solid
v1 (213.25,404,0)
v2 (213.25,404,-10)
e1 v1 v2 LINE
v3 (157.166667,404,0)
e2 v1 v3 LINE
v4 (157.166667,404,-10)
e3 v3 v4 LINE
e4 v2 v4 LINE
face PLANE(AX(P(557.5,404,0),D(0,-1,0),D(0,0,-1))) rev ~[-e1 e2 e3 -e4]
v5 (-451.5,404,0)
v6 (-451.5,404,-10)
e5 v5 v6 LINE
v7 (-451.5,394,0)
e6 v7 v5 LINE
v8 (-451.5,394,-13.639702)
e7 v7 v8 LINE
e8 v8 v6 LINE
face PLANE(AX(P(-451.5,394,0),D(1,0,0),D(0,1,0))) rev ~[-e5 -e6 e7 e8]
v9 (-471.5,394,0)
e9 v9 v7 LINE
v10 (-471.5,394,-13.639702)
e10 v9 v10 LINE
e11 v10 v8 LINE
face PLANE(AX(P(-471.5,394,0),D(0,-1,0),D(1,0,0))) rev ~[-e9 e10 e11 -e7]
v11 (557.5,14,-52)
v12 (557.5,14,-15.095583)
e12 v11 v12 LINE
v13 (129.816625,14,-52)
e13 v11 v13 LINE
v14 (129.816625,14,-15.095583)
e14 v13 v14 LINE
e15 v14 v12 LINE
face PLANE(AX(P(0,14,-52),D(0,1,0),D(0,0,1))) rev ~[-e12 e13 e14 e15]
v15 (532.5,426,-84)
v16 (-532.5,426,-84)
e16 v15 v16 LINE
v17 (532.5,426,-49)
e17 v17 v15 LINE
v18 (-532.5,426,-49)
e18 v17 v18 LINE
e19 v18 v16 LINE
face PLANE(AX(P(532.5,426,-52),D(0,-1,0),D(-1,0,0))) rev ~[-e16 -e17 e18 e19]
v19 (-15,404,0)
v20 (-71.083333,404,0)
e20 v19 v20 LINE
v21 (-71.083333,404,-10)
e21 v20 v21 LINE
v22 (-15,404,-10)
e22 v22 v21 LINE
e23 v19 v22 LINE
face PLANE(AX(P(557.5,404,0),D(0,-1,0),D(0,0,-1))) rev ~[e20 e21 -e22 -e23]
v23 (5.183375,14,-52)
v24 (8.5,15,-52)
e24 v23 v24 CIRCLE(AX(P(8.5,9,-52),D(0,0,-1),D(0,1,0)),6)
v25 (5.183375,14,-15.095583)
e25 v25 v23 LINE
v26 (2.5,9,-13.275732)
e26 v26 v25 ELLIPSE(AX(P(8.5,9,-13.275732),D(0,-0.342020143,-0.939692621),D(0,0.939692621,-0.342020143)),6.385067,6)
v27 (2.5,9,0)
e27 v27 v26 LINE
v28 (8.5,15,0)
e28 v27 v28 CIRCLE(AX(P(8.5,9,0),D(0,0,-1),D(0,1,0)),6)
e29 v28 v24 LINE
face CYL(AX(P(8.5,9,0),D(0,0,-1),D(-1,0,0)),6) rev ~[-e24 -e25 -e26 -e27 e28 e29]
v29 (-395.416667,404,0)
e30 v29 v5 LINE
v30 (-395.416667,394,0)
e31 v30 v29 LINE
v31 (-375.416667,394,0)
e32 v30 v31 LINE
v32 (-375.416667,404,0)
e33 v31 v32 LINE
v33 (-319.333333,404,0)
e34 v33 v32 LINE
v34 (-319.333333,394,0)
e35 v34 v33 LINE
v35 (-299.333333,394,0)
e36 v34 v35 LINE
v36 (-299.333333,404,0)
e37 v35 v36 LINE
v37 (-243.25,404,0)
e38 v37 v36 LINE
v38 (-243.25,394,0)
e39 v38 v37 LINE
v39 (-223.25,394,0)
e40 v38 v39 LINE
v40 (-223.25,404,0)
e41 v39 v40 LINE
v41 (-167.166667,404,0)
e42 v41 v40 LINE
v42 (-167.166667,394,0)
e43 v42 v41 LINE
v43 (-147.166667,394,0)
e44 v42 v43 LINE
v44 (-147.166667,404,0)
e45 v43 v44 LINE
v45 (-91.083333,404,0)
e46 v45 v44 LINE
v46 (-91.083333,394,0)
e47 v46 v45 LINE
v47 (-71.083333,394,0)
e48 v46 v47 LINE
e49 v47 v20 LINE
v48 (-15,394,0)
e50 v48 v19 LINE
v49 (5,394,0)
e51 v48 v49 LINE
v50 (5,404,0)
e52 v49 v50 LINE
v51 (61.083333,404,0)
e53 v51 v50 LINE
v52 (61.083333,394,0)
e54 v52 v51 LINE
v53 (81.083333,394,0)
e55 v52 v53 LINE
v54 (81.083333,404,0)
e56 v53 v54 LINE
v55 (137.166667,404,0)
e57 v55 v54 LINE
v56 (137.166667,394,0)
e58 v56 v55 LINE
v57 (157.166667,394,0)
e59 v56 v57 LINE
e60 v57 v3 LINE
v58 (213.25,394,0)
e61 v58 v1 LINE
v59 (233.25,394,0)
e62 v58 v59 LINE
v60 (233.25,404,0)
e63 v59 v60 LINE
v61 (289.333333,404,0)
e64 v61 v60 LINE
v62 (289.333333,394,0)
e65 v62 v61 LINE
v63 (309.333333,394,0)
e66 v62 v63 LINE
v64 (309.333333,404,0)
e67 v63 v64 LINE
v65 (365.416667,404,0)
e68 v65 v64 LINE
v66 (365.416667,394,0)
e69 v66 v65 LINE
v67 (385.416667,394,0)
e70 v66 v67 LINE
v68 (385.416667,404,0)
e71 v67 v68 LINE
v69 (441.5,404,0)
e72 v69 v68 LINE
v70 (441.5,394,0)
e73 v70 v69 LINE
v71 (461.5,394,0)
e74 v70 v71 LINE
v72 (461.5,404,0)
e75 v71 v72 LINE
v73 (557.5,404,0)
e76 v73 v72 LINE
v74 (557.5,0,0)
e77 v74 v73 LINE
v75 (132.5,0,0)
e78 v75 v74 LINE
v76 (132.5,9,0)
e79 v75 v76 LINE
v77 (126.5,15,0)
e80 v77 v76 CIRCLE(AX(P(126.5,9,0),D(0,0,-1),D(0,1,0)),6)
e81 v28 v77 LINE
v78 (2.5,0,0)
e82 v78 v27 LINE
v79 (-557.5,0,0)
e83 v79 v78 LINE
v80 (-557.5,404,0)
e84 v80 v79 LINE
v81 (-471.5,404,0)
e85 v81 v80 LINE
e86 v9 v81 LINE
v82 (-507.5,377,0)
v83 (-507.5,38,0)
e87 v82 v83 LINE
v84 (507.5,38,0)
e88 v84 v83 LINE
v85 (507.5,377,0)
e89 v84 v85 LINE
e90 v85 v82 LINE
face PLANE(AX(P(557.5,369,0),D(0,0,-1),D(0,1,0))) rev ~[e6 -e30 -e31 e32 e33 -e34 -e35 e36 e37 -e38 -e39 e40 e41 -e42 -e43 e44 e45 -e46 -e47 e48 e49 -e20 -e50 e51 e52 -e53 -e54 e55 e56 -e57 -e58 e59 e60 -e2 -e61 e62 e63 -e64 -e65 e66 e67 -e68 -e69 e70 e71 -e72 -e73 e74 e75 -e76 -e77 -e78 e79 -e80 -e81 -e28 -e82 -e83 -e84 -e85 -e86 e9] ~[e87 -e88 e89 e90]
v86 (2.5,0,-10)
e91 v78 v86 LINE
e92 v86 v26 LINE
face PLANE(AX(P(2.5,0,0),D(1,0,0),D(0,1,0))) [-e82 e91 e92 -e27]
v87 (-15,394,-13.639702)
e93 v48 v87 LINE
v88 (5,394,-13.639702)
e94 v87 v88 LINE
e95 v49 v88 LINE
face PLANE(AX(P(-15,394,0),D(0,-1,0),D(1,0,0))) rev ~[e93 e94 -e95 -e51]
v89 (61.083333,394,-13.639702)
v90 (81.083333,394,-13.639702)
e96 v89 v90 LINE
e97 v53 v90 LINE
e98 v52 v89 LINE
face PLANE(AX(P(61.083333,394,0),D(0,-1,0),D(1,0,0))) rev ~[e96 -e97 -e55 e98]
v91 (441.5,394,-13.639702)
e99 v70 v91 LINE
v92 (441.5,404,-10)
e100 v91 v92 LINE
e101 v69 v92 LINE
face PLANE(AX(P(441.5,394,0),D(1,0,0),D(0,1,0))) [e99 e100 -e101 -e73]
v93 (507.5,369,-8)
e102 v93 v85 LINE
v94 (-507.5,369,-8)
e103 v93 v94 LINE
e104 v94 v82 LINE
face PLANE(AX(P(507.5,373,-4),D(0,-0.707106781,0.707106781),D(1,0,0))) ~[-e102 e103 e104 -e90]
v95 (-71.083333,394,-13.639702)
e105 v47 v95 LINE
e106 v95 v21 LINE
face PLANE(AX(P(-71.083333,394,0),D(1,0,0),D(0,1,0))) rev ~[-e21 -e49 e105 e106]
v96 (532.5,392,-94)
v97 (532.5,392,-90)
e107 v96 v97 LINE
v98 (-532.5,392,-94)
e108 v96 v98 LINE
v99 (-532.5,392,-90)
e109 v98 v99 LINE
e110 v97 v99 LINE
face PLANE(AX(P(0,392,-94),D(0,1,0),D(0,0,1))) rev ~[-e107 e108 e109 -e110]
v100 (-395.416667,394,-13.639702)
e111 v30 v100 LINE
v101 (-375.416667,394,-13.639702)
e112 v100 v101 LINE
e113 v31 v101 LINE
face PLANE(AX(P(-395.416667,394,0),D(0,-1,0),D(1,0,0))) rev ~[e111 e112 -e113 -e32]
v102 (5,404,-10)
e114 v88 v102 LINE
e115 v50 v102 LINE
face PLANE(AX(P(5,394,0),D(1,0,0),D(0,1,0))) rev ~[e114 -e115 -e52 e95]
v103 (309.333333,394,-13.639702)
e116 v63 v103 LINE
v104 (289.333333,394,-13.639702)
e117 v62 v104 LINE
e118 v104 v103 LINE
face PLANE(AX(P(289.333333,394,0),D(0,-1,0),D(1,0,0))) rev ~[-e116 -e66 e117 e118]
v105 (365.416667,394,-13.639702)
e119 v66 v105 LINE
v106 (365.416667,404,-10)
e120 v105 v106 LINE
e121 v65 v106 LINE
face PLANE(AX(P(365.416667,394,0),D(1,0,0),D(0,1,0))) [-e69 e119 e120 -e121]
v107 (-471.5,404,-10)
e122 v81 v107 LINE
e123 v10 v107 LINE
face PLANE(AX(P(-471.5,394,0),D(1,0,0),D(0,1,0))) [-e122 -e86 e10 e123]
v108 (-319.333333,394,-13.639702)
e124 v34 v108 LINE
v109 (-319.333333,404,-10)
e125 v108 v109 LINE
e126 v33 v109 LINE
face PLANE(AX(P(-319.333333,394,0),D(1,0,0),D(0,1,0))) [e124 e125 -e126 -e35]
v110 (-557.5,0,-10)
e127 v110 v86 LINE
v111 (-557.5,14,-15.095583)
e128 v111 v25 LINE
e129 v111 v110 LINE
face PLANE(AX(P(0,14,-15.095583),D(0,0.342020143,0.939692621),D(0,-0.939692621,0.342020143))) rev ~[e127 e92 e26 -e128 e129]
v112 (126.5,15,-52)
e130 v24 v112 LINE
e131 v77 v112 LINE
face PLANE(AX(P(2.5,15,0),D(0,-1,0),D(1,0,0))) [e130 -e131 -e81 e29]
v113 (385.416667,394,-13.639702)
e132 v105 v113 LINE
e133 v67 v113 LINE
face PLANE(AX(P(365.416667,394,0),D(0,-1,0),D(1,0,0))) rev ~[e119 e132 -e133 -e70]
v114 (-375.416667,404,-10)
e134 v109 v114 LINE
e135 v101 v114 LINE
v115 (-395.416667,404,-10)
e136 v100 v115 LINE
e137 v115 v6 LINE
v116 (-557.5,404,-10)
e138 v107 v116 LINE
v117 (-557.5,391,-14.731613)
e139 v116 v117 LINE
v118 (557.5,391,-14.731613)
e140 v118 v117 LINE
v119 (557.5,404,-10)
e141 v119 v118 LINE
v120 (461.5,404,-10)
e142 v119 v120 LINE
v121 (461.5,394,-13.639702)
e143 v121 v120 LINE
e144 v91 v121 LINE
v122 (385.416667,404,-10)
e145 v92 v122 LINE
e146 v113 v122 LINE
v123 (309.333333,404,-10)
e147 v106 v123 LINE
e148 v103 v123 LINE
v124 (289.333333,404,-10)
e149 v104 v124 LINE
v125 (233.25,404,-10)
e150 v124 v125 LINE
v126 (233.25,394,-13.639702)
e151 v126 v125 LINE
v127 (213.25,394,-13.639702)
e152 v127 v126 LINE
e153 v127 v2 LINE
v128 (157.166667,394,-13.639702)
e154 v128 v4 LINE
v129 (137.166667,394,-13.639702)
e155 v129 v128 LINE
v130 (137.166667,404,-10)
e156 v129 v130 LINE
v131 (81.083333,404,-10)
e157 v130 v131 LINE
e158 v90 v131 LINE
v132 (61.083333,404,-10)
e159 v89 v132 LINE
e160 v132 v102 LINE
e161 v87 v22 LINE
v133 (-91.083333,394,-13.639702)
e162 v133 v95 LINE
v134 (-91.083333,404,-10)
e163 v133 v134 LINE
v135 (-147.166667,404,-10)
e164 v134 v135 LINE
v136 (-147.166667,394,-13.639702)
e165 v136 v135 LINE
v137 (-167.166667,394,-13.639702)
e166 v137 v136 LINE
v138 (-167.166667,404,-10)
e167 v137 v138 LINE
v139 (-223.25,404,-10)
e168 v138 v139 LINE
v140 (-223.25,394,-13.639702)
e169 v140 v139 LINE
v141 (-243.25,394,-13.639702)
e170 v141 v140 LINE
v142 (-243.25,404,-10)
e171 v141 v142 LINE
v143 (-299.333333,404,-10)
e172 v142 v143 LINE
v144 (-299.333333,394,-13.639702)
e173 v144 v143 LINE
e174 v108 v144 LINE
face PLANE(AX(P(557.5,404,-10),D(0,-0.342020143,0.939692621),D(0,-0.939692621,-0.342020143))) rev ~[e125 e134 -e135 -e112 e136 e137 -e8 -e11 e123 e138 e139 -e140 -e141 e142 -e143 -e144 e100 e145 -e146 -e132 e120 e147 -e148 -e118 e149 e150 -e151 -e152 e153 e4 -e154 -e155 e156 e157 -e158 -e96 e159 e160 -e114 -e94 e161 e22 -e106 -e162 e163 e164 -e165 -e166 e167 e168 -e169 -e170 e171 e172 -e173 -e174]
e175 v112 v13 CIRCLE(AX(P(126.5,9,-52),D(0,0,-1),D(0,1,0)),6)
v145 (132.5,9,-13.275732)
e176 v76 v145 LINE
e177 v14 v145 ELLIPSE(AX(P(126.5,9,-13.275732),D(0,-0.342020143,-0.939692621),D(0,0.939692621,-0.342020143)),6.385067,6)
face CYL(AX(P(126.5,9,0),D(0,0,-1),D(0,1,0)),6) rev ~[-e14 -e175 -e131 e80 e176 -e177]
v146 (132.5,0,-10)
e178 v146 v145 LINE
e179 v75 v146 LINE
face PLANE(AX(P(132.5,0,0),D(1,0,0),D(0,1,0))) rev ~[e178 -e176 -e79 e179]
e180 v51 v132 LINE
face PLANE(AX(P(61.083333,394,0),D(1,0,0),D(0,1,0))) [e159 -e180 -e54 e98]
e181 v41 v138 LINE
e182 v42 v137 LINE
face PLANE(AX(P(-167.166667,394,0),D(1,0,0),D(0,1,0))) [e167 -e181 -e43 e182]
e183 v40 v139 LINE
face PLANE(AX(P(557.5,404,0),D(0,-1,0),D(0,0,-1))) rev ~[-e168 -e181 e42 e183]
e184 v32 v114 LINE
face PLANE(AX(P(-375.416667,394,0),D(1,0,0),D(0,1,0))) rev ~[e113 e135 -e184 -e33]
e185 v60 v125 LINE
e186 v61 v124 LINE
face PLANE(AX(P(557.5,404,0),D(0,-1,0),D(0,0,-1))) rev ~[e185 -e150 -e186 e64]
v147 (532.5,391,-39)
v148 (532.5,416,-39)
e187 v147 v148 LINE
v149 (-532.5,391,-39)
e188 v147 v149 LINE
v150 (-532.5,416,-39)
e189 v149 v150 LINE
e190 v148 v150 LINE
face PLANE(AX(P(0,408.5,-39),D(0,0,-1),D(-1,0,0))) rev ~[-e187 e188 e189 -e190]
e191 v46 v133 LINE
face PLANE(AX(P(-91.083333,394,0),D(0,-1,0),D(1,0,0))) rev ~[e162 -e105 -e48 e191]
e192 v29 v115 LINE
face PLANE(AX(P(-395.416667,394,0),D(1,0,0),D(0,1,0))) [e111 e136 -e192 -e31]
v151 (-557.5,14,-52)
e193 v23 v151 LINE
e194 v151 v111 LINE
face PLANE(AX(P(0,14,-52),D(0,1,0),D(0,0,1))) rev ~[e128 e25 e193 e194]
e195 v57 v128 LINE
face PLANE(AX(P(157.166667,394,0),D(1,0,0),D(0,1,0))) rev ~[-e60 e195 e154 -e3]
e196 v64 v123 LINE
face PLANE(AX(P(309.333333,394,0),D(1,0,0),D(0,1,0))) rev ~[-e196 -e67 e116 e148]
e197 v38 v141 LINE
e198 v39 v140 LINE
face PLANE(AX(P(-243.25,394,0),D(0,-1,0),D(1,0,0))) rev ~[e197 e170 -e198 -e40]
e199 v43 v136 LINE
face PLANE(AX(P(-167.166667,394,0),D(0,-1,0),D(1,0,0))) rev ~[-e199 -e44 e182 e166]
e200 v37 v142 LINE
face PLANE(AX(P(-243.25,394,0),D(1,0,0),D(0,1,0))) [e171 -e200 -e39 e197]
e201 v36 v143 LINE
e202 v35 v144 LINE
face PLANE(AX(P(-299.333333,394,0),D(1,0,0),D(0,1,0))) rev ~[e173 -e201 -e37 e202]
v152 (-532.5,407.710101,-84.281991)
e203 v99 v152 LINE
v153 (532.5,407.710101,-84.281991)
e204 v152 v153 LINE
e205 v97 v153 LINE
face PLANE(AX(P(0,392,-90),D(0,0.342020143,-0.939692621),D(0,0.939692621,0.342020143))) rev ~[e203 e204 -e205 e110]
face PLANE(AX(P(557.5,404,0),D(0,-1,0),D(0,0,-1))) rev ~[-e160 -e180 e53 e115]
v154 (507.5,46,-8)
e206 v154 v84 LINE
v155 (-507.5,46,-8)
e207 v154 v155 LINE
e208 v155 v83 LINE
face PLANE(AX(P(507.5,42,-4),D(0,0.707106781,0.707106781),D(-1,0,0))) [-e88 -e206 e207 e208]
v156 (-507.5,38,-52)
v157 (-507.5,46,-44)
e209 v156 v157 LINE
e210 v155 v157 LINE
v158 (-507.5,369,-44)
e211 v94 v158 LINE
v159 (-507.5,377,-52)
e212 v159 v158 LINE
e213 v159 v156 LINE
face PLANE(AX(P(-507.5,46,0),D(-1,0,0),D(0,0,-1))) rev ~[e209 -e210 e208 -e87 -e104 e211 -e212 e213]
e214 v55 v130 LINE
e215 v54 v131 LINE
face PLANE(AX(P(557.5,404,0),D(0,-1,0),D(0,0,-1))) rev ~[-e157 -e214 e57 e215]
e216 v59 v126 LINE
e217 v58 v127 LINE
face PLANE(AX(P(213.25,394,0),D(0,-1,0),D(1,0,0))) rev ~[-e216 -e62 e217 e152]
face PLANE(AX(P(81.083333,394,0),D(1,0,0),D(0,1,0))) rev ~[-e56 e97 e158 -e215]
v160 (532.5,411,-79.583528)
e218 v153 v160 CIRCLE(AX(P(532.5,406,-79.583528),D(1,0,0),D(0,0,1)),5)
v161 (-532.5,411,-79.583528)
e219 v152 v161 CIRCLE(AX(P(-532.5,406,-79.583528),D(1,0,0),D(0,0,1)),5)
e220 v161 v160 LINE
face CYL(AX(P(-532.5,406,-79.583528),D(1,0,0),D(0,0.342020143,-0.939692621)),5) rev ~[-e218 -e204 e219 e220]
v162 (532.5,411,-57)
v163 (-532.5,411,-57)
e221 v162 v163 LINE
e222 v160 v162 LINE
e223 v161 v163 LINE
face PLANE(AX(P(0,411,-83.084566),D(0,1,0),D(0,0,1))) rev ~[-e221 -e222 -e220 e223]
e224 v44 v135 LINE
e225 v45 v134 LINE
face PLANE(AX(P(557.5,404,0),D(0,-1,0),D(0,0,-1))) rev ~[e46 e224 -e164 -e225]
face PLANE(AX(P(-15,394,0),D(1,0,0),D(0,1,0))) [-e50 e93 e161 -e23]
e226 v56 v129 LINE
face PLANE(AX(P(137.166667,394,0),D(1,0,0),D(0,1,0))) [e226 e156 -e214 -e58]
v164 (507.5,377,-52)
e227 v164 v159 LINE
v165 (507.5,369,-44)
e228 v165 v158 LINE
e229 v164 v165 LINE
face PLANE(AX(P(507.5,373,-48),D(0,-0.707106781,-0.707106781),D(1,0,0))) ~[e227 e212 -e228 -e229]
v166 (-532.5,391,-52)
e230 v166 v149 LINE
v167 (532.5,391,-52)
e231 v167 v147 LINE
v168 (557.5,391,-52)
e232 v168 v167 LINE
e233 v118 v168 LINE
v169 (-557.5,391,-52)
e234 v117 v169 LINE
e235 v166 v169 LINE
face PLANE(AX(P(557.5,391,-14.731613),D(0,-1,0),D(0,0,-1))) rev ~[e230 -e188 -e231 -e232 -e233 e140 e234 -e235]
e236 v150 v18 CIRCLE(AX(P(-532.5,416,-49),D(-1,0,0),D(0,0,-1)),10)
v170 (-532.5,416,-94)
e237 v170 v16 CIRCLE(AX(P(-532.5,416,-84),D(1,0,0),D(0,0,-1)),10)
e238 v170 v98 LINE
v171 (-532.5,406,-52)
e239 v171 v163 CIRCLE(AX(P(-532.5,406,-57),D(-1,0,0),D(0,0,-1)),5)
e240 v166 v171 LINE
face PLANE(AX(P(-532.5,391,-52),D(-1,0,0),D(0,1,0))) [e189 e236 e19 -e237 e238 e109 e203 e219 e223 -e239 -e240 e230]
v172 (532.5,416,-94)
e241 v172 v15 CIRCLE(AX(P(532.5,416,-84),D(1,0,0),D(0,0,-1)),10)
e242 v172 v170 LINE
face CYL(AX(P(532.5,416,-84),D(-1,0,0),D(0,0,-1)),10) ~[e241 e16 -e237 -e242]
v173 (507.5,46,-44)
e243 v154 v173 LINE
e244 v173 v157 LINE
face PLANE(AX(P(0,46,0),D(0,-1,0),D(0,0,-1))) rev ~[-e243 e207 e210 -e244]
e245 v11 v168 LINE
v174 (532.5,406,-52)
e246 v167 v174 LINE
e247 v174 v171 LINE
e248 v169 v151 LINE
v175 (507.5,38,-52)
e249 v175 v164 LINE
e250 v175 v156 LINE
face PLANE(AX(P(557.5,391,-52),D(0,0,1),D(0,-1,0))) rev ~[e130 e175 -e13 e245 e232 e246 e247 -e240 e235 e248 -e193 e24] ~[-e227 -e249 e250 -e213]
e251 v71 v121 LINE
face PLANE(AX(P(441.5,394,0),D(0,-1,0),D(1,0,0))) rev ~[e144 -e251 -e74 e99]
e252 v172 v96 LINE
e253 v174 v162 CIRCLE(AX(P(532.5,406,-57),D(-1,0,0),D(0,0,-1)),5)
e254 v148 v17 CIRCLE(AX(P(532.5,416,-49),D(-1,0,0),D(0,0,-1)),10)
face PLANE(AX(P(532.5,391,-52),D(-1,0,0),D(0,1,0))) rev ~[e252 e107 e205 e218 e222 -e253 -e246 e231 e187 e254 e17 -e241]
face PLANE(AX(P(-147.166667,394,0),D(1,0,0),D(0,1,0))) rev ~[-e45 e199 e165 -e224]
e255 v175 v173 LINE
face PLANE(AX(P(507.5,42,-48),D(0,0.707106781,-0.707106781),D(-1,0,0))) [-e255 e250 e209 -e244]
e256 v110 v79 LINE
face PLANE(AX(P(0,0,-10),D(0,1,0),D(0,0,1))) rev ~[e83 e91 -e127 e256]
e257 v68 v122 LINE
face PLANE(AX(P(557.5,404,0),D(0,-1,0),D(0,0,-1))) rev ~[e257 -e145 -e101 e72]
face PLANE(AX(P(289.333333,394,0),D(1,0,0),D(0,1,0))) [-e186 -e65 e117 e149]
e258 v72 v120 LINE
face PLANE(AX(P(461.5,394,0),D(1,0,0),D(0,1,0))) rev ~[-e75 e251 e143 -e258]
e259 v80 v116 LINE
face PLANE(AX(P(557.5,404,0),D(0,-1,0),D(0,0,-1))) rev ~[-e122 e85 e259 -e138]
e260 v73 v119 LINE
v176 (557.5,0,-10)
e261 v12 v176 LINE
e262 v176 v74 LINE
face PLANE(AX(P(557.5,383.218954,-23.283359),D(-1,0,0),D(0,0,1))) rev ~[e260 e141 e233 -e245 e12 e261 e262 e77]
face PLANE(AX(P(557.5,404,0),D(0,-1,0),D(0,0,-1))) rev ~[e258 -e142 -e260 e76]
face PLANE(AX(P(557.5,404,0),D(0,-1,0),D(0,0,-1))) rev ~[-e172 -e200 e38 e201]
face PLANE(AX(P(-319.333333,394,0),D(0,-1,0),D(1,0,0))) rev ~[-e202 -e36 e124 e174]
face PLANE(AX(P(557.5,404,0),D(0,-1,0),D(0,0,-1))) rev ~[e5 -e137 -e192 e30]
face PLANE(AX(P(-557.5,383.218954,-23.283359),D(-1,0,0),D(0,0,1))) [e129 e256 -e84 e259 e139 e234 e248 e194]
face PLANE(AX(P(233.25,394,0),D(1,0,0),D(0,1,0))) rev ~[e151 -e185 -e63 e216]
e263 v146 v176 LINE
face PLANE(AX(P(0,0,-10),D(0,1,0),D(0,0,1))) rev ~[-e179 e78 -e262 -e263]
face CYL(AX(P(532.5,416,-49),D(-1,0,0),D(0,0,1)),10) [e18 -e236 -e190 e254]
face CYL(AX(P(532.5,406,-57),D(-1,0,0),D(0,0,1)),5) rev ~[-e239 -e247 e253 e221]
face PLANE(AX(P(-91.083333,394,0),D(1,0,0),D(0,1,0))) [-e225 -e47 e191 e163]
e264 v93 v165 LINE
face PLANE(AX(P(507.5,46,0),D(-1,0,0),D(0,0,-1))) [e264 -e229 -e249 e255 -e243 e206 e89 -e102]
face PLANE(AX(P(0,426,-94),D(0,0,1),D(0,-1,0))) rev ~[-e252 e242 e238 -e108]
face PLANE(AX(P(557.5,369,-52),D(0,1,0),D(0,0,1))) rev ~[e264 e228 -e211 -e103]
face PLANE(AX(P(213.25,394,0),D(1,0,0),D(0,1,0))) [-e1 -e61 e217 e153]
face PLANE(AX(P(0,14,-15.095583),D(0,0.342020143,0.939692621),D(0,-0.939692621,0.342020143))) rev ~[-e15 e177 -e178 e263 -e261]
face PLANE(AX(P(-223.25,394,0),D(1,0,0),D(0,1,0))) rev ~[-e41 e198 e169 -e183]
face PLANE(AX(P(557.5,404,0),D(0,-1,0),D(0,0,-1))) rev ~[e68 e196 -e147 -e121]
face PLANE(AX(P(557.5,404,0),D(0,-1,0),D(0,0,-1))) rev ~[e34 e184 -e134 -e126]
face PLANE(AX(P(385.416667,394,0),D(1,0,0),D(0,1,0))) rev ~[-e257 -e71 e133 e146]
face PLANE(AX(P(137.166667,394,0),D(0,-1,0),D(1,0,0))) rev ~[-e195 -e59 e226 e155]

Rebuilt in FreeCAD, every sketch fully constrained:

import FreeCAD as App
import Part
import Sketcher
Q = App.Units.Quantity


def edges_at(feature, points):
    """Names of the edges that pass closest to the given points."""
    edges = feature.Shape.Edges
    near = lambda p: min(range(len(edges)), key=lambda i: edges[i].distToShape(Part.Vertex(*p))[0])
    return sorted({f"Edge{near(p) + 1}" for p in points})

doc = App.newDocument("Part")
body = doc.addObject("PartDesign::Body", "Body")

# Sketch on YZ plane
sketch1 = body.newObject("Sketcher::SketchObject", "Sketch")
sketch1.AttachmentSupport = (doc.getObject("YZ_Plane"), [""])
sketch1.MapMode = "FlatFace"
sketch1.addGeometry(Part.LineSegment(App.Vector(46, 0, 0), App.Vector(0, 0, 0)), False)
sketch1.addGeometry(Part.LineSegment(App.Vector(0, 0, 0), App.Vector(0, -10, 0)), False)
sketch1.addGeometry(Part.LineSegment(App.Vector(0, -10, 0), App.Vector(14, -15, 0)), False)
sketch1.addGeometry(Part.LineSegment(App.Vector(14, -15, 0), App.Vector(14, -52, 0)), False)
sketch1.addGeometry(Part.LineSegment(App.Vector(14, -52, 0), App.Vector(46, -52, 0)), False)
sketch1.addGeometry(Part.LineSegment(App.Vector(46, -52, 0), App.Vector(46, 0, 0)), False)
sketch1.addConstraint(Sketcher.Constraint("Coincident", 0, 2, 1, 1))
sketch1.addConstraint(Sketcher.Constraint("Coincident", 1, 2, 2, 1))
sketch1.addConstraint(Sketcher.Constraint("Coincident", 2, 2, 3, 1))
sketch1.addConstraint(Sketcher.Constraint("Coincident", 3, 2, 4, 1))
sketch1.addConstraint(Sketcher.Constraint("Coincident", 4, 2, 5, 1))
sketch1.addConstraint(Sketcher.Constraint("Coincident", 5, 2, 0, 1))
sketch1.addConstraint(Sketcher.Constraint("Horizontal", 0))
sketch1.addConstraint(Sketcher.Constraint("Vertical", 1))
sketch1.addConstraint(Sketcher.Constraint("Vertical", 3))
sketch1.addConstraint(Sketcher.Constraint("Horizontal", 4))
sketch1.addConstraint(Sketcher.Constraint("Vertical", 5))
sketch1.addConstraint(Sketcher.Constraint("Coincident", 0, 2, -1, 1))
sketch1.addConstraint(Sketcher.Constraint("DistanceX", 0, 2, 0, 1, Q("46 mm")))
sketch1.addConstraint(Sketcher.Constraint("DistanceX", 4, 1, 4, 2, Q("32 mm")))
sketch1.addConstraint(Sketcher.Constraint("DistanceY", 1, 2, 1, 1, Q("10 mm")))
sketch1.addConstraint(Sketcher.Constraint("DistanceY", 5, 1, 5, 2, Q("52 mm")))
sketch1.addConstraint(Sketcher.Constraint("Angle", 2, Q("-20 deg")))
pad1 = body.newObject("PartDesign::Pad", "Pad")
pad1.Profile = sketch1
pad1.Length = 1115
pad1.Midplane = True

# Sketch on XZ plane
sketch2 = body.newObject("Sketcher::SketchObject", "Sketch001")
sketch2.AttachmentSupport = (doc.getObject("XZ_Plane"), [""])
sketch2.MapMode = "FlatFace"
sketch2.AttachmentOffset = App.Placement(App.Vector(0, 0, -46), App.Rotation())
sketch2.addGeometry(Part.LineSegment(App.Vector(-558, -52, 0), App.Vector(-558, 0, 0)), False)
sketch2.addGeometry(Part.LineSegment(App.Vector(-558, 0, 0), App.Vector(-508, 0, 0)), False)
sketch2.addGeometry(Part.LineSegment(App.Vector(-508, 0, 0), App.Vector(-508, -52, 0)), False)
sketch2.addGeometry(Part.LineSegment(App.Vector(-508, -52, 0), App.Vector(-558, -52, 0)), False)
sketch2.addGeometry(Part.LineSegment(App.Vector(508, -52, 0), App.Vector(508, 0, 0)), False)
sketch2.addGeometry(Part.LineSegment(App.Vector(508, 0, 0), App.Vector(558, 0, 0)), False)
sketch2.addGeometry(Part.LineSegment(App.Vector(558, 0, 0), App.Vector(558, -52, 0)), False)
sketch2.addGeometry(Part.LineSegment(App.Vector(558, -52, 0), App.Vector(508, -52, 0)), False)
sketch2.addConstraint(Sketcher.Constraint("Coincident", 0, 2, 1, 1))
sketch2.addConstraint(Sketcher.Constraint("Coincident", 1, 2, 2, 1))
sketch2.addConstraint(Sketcher.Constraint("Coincident", 2, 2, 3, 1))
sketch2.addConstraint(Sketcher.Constraint("Coincident", 3, 2, 0, 1))
sketch2.addConstraint(Sketcher.Constraint("Coincident", 4, 2, 5, 1))
sketch2.addConstraint(Sketcher.Constraint("Coincident", 5, 2, 6, 1))
sketch2.addConstraint(Sketcher.Constraint("Coincident", 6, 2, 7, 1))
sketch2.addConstraint(Sketcher.Constraint("Coincident", 7, 2, 4, 1))
sketch2.addConstraint(Sketcher.Constraint("Vertical", 0))
sketch2.addConstraint(Sketcher.Constraint("Horizontal", 1))
sketch2.addConstraint(Sketcher.Constraint("Vertical", 2))
sketch2.addConstraint(Sketcher.Constraint("Horizontal", 3))
sketch2.addConstraint(Sketcher.Constraint("Vertical", 4))
sketch2.addConstraint(Sketcher.Constraint("Horizontal", 5))
sketch2.addConstraint(Sketcher.Constraint("Vertical", 6))
sketch2.addConstraint(Sketcher.Constraint("Horizontal", 7))
sketch2.addConstraint(Sketcher.Constraint("Symmetric", 1, 2, 4, 2, -1, 1))
sketch2.addConstraint(Sketcher.Constraint("Symmetric", 0, 2, 5, 2, -2))
sketch2.addConstraint(Sketcher.Constraint("Horizontal", 3, 2, 6, 2))
sketch2.addConstraint(Sketcher.Constraint("DistanceX", 1, 1, 1, 2, Q("50 mm")))
sketch2.addConstraint(Sketcher.Constraint("DistanceY", 0, 1, 0, 2, Q("52 mm")))
sketch2.addConstraint(Sketcher.Constraint("DistanceX", 1, 2, 4, 2, Q("1015 mm")))
pad2 = body.newObject("PartDesign::Pad", "Pad001")
pad2.Profile = sketch2
pad2.Length = 323
pad2.Reversed = True

# Sketch on YZ plane
sketch3 = body.newObject("Sketcher::SketchObject", "Sketch002")
sketch3.AttachmentSupport = (doc.getObject("YZ_Plane"), [""])
sketch3.MapMode = "FlatFace"
sketch3.AttachmentOffset = App.Placement(App.Vector(0, 0, 557.5), App.Rotation())
sketch3.addGeometry(Part.LineSegment(App.Vector(404, 0, 0), App.Vector(369, 0, 0)), False)
sketch3.addGeometry(Part.LineSegment(App.Vector(369, 0, 0), App.Vector(369, -52, 0)), False)
sketch3.addGeometry(Part.LineSegment(App.Vector(369, -52, 0), App.Vector(391, -52, 0)), False)
sketch3.addGeometry(Part.LineSegment(App.Vector(391, -52, 0), App.Vector(391, -15, 0)), False)
sketch3.addGeometry(Part.LineSegment(App.Vector(391, -15, 0), App.Vector(404, -10, 0)), False)
sketch3.addGeometry(Part.LineSegment(App.Vector(404, -10, 0), App.Vector(404, 0, 0)), False)
sketch3.addConstraint(Sketcher.Constraint("Coincident", 0, 2, 1, 1))
sketch3.addConstraint(Sketcher.Constraint("Coincident", 1, 2, 2, 1))
sketch3.addConstraint(Sketcher.Constraint("Coincident", 2, 2, 3, 1))
sketch3.addConstraint(Sketcher.Constraint("Coincident", 3, 2, 4, 1))
sketch3.addConstraint(Sketcher.Constraint("Coincident", 4, 2, 5, 1))
sketch3.addConstraint(Sketcher.Constraint("Coincident", 5, 2, 0, 1))
sketch3.addConstraint(Sketcher.Constraint("Horizontal", 0))
sketch3.addConstraint(Sketcher.Constraint("Vertical", 1))
sketch3.addConstraint(Sketcher.Constraint("Horizontal", 2))
sketch3.addConstraint(Sketcher.Constraint("Vertical", 3))
sketch3.addConstraint(Sketcher.Constraint("Vertical", 5))
sketch3.addConstraint(Sketcher.Constraint("PointOnObject", 0, 2, -1))
sketch3.addConstraint(Sketcher.Constraint("DistanceX", 0, 2, 0, 1, Q("35 mm")))
sketch3.addConstraint(Sketcher.Constraint("DistanceX", 2, 1, 2, 2, Q("22 mm")))
sketch3.addConstraint(Sketcher.Constraint("DistanceY", 1, 2, 1, 1, Q("52 mm")))
sketch3.addConstraint(Sketcher.Constraint("DistanceY", 5, 1, 5, 2, Q("10 mm")))
sketch3.addConstraint(Sketcher.Constraint("Angle", 4, Q("20 deg")))
sketch3.addConstraint(Sketcher.Constraint("DistanceX", -1, 1, 0, 2, Q("369 mm")))
pad3 = body.newObject("PartDesign::Pad", "Pad002")
pad3.Profile = sketch3
pad3.Length = 1115
pad3.Reversed = True

# Sketch on XY plane
sketch4 = body.newObject("Sketcher::SketchObject", "Sketch003")
sketch4.AttachmentSupport = (doc.getObject("XY_Plane"), [""])
sketch4.MapMode = "FlatFace"
sketch4.addGeometry(Part.LineSegment(App.Vector(2, 15, 0), App.Vector(2, 0, 0)), False)
sketch4.addGeometry(Part.LineSegment(App.Vector(2, 0, 0), App.Vector(132, 0, 0)), False)
sketch4.addGeometry(Part.LineSegment(App.Vector(132, 0, 0), App.Vector(132, 15, 0)), False)
sketch4.addGeometry(Part.LineSegment(App.Vector(132, 15, 0), App.Vector(2, 15, 0)), False)
sketch4.addConstraint(Sketcher.Constraint("Coincident", 0, 2, 1, 1))
sketch4.addConstraint(Sketcher.Constraint("Coincident", 1, 2, 2, 1))
sketch4.addConstraint(Sketcher.Constraint("Coincident", 2, 2, 3, 1))
sketch4.addConstraint(Sketcher.Constraint("Coincident", 3, 2, 0, 1))
sketch4.addConstraint(Sketcher.Constraint("Vertical", 0))
sketch4.addConstraint(Sketcher.Constraint("Horizontal", 1))
sketch4.addConstraint(Sketcher.Constraint("Vertical", 2))
sketch4.addConstraint(Sketcher.Constraint("Horizontal", 3))
sketch4.addConstraint(Sketcher.Constraint("PointOnObject", 0, 2, -1))
sketch4.addConstraint(Sketcher.Constraint("DistanceX", 1, 1, 1, 2, Q("130 mm")))
sketch4.addConstraint(Sketcher.Constraint("DistanceY", 0, 2, 0, 1, Q("15 mm")))
sketch4.addConstraint(Sketcher.Constraint("DistanceX", -1, 1, 0, 2, Q("2.5 mm")))
pocket1 = body.newObject("PartDesign::Pocket", "Pocket")
pocket1.Profile = sketch4
pocket1.Type = "ThroughAll"
doc.recompute()

fillet = body.newObject("PartDesign::Fillet", "Fillet")
fillet.Base = (pocket1, edges_at(pocket1, [(132.5, 15, -26), (2.5, 15, -26)]))
fillet.Radius = 6

# Sketch on XY plane
sketch5 = body.newObject("Sketcher::SketchObject", "Sketch004")
sketch5.AttachmentSupport = (doc.getObject("XY_Plane"), [""])
sketch5.MapMode = "FlatFace"
sketch5.addGeometry(Part.LineSegment(App.Vector(-472, 404, 0), App.Vector(-472, 394, 0)), False)
sketch5.addGeometry(Part.LineSegment(App.Vector(-472, 394, 0), App.Vector(-452, 394, 0)), False)
sketch5.addGeometry(Part.LineSegment(App.Vector(-452, 394, 0), App.Vector(-452, 404, 0)), False)
sketch5.addGeometry(Part.LineSegment(App.Vector(-452, 404, 0), App.Vector(-472, 404, 0)), False)
sketch5.addGeometry(Part.LineSegment(App.Vector(-395, 404, 0), App.Vector(-395, 394, 0)), False)
sketch5.addGeometry(Part.LineSegment(App.Vector(-395, 394, 0), App.Vector(-375, 394, 0)), False)
sketch5.addGeometry(Part.LineSegment(App.Vector(-375, 394, 0), App.Vector(-375, 404, 0)), False)
sketch5.addGeometry(Part.LineSegment(App.Vector(-375, 404, 0), App.Vector(-395, 404, 0)), False)
sketch5.addGeometry(Part.LineSegment(App.Vector(-319, 404, 0), App.Vector(-319, 394, 0)), False)
sketch5.addGeometry(Part.LineSegment(App.Vector(-319, 394, 0), App.Vector(-299, 394, 0)), False)
sketch5.addGeometry(Part.LineSegment(App.Vector(-299, 394, 0), App.Vector(-299, 404, 0)), False)
sketch5.addGeometry(Part.LineSegment(App.Vector(-299, 404, 0), App.Vector(-319, 404, 0)), False)
sketch5.addGeometry(Part.LineSegment(App.Vector(-243, 404, 0), App.Vector(-243, 394, 0)), False)
sketch5.addGeometry(Part.LineSegment(App.Vector(-243, 394, 0), App.Vector(-223, 394, 0)), False)
sketch5.addGeometry(Part.LineSegment(App.Vector(-223, 394, 0), App.Vector(-223, 404, 0)), False)
sketch5.addGeometry(Part.LineSegment(App.Vector(-223, 404, 0), App.Vector(-243, 404, 0)), False)
sketch5.addGeometry(Part.LineSegment(App.Vector(-167, 404, 0), App.Vector(-167, 394, 0)), False)
sketch5.addGeometry(Part.LineSegment(App.Vector(-167, 394, 0), App.Vector(-147, 394, 0)), False)
sketch5.addGeometry(Part.LineSegment(App.Vector(-147, 394, 0), App.Vector(-147, 404, 0)), False)
sketch5.addGeometry(Part.LineSegment(App.Vector(-147, 404, 0), App.Vector(-167, 404, 0)), False)
sketch5.addGeometry(Part.LineSegment(App.Vector(-91, 404, 0), App.Vector(-91, 394, 0)), False)
sketch5.addGeometry(Part.LineSegment(App.Vector(-91, 394, 0), App.Vector(-71, 394, 0)), False)
sketch5.addGeometry(Part.LineSegment(App.Vector(-71, 394, 0), App.Vector(-71, 404, 0)), False)
sketch5.addGeometry(Part.LineSegment(App.Vector(-71, 404, 0), App.Vector(-91, 404, 0)), False)
sketch5.addGeometry(Part.LineSegment(App.Vector(-15, 404, 0), App.Vector(-15, 394, 0)), False)
sketch5.addGeometry(Part.LineSegment(App.Vector(-15, 394, 0), App.Vector(5, 394, 0)), False)
sketch5.addGeometry(Part.LineSegment(App.Vector(5, 394, 0), App.Vector(5, 404, 0)), False)
sketch5.addGeometry(Part.LineSegment(App.Vector(5, 404, 0), App.Vector(-15, 404, 0)), False)
sketch5.addGeometry(Part.LineSegment(App.Vector(61, 404, 0), App.Vector(61, 394, 0)), False)
sketch5.addGeometry(Part.LineSegment(App.Vector(61, 394, 0), App.Vector(81, 394, 0)), False)
sketch5.addGeometry(Part.LineSegment(App.Vector(81, 394, 0), App.Vector(81, 404, 0)), False)
sketch5.addGeometry(Part.LineSegment(App.Vector(81, 404, 0), App.Vector(61, 404, 0)), False)
sketch5.addGeometry(Part.LineSegment(App.Vector(137, 404, 0), App.Vector(137, 394, 0)), False)
sketch5.addGeometry(Part.LineSegment(App.Vector(137, 394, 0), App.Vector(157, 394, 0)), False)
sketch5.addGeometry(Part.LineSegment(App.Vector(157, 394, 0), App.Vector(157, 404, 0)), False)
sketch5.addGeometry(Part.LineSegment(App.Vector(157, 404, 0), App.Vector(137, 404, 0)), False)
sketch5.addGeometry(Part.LineSegment(App.Vector(213, 404, 0), App.Vector(213, 394, 0)), False)
sketch5.addGeometry(Part.LineSegment(App.Vector(213, 394, 0), App.Vector(233, 394, 0)), False)
sketch5.addGeometry(Part.LineSegment(App.Vector(233, 394, 0), App.Vector(233, 404, 0)), False)
sketch5.addGeometry(Part.LineSegment(App.Vector(233, 404, 0), App.Vector(213, 404, 0)), False)
sketch5.addGeometry(Part.LineSegment(App.Vector(289, 404, 0), App.Vector(289, 394, 0)), False)
sketch5.addGeometry(Part.LineSegment(App.Vector(289, 394, 0), App.Vector(309, 394, 0)), False)
sketch5.addGeometry(Part.LineSegment(App.Vector(309, 394, 0), App.Vector(309, 404, 0)), False)
sketch5.addGeometry(Part.LineSegment(App.Vector(309, 404, 0), App.Vector(289, 404, 0)), False)
sketch5.addGeometry(Part.LineSegment(App.Vector(365, 404, 0), App.Vector(365, 394, 0)), False)
sketch5.addGeometry(Part.LineSegment(App.Vector(365, 394, 0), App.Vector(385, 394, 0)), False)
sketch5.addGeometry(Part.LineSegment(App.Vector(385, 394, 0), App.Vector(385, 404, 0)), False)
sketch5.addGeometry(Part.LineSegment(App.Vector(385, 404, 0), App.Vector(365, 404, 0)), False)
sketch5.addGeometry(Part.LineSegment(App.Vector(442, 404, 0), App.Vector(442, 394, 0)), False)
sketch5.addGeometry(Part.LineSegment(App.Vector(442, 394, 0), App.Vector(462, 394, 0)), False)
sketch5.addGeometry(Part.LineSegment(App.Vector(462, 394, 0), App.Vector(462, 404, 0)), False)
sketch5.addGeometry(Part.LineSegment(App.Vector(462, 404, 0), App.Vector(442, 404, 0)), False)
sketch5.addConstraint(Sketcher.Constraint("Coincident", 0, 2, 1, 1))
sketch5.addConstraint(Sketcher.Constraint("Coincident", 1, 2, 2, 1))
sketch5.addConstraint(Sketcher.Constraint("Coincident", 2, 2, 3, 1))
sketch5.addConstraint(Sketcher.Constraint("Coincident", 3, 2, 0, 1))
sketch5.addConstraint(Sketcher.Constraint("Coincident", 4, 2, 5, 1))
sketch5.addConstraint(Sketcher.Constraint("Coincident", 5, 2, 6, 1))
sketch5.addConstraint(Sketcher.Constraint("Coincident", 6, 2, 7, 1))
sketch5.addConstraint(Sketcher.Constraint("Coincident", 7, 2, 4, 1))
sketch5.addConstraint(Sketcher.Constraint("Coincident", 8, 2, 9, 1))
sketch5.addConstraint(Sketcher.Constraint("Coincident", 9, 2, 10, 1))
sketch5.addConstraint(Sketcher.Constraint("Coincident", 10, 2, 11, 1))
sketch5.addConstraint(Sketcher.Constraint("Coincident", 11, 2, 8, 1))
sketch5.addConstraint(Sketcher.Constraint("Coincident", 12, 2, 13, 1))
sketch5.addConstraint(Sketcher.Constraint("Coincident", 13, 2, 14, 1))
sketch5.addConstraint(Sketcher.Constraint("Coincident", 14, 2, 15, 1))
sketch5.addConstraint(Sketcher.Constraint("Coincident", 15, 2, 12, 1))
sketch5.addConstraint(Sketcher.Constraint("Coincident", 16, 2, 17, 1))
sketch5.addConstraint(Sketcher.Constraint("Coincident", 17, 2, 18, 1))
sketch5.addConstraint(Sketcher.Constraint("Coincident", 18, 2, 19, 1))
sketch5.addConstraint(Sketcher.Constraint("Coincident", 19, 2, 16, 1))
sketch5.addConstraint(Sketcher.Constraint("Coincident", 20, 2, 21, 1))
sketch5.addConstraint(Sketcher.Constraint("Coincident", 21, 2, 22, 1))
sketch5.addConstraint(Sketcher.Constraint("Coincident", 22, 2, 23, 1))
sketch5.addConstraint(Sketcher.Constraint("Coincident", 23, 2, 20, 1))
sketch5.addConstraint(Sketcher.Constraint("Coincident", 24, 2, 25, 1))
sketch5.addConstraint(Sketcher.Constraint("Coincident", 25, 2, 26, 1))
sketch5.addConstraint(Sketcher.Constraint("Coincident", 26, 2, 27, 1))
sketch5.addConstraint(Sketcher.Constraint("Coincident", 27, 2, 24, 1))
sketch5.addConstraint(Sketcher.Constraint("Coincident", 28, 2, 29, 1))
sketch5.addConstraint(Sketcher.Constraint("Coincident", 29, 2, 30, 1))
sketch5.addConstraint(Sketcher.Constraint("Coincident", 30, 2, 31, 1))
sketch5.addConstraint(Sketcher.Constraint("Coincident", 31, 2, 28, 1))
sketch5.addConstraint(Sketcher.Constraint("Coincident", 32, 2, 33, 1))
sketch5.addConstraint(Sketcher.Constraint("Coincident", 33, 2, 34, 1))
sketch5.addConstraint(Sketcher.Constraint("Coincident", 34, 2, 35, 1))
sketch5.addConstraint(Sketcher.Constraint("Coincident", 35, 2, 32, 1))
sketch5.addConstraint(Sketcher.Constraint("Coincident", 36, 2, 37, 1))
sketch5.addConstraint(Sketcher.Constraint("Coincident", 37, 2, 38, 1))
sketch5.addConstraint(Sketcher.Constraint("Coincident", 38, 2, 39, 1))
sketch5.addConstraint(Sketcher.Constraint("Coincident", 39, 2, 36, 1))
sketch5.addConstraint(Sketcher.Constraint("Coincident", 40, 2, 41, 1))
sketch5.addConstraint(Sketcher.Constraint("Coincident", 41, 2, 42, 1))
sketch5.addConstraint(Sketcher.Constraint("Coincident", 42, 2, 43, 1))
sketch5.addConstraint(Sketcher.Constraint("Coincident", 43, 2, 40, 1))
sketch5.addConstraint(Sketcher.Constraint("Coincident", 44, 2, 45, 1))
sketch5.addConstraint(Sketcher.Constraint("Coincident", 45, 2, 46, 1))
sketch5.addConstraint(Sketcher.Constraint("Coincident", 46, 2, 47, 1))
sketch5.addConstraint(Sketcher.Constraint("Coincident", 47, 2, 44, 1))
sketch5.addConstraint(Sketcher.Constraint("Coincident", 48, 2, 49, 1))
sketch5.addConstraint(Sketcher.Constraint("Coincident", 49, 2, 50, 1))
sketch5.addConstraint(Sketcher.Constraint("Coincident", 50, 2, 51, 1))
sketch5.addConstraint(Sketcher.Constraint("Coincident", 51, 2, 48, 1))
sketch5.addConstraint(Sketcher.Constraint("Vertical", 0))
sketch5.addConstraint(Sketcher.Constraint("Horizontal", 1))
sketch5.addConstraint(Sketcher.Constraint("Vertical", 2))
sketch5.addConstraint(Sketcher.Constraint("Horizontal", 3))
sketch5.addConstraint(Sketcher.Constraint("Vertical", 4))
sketch5.addConstraint(Sketcher.Constraint("Horizontal", 5))
sketch5.addConstraint(Sketcher.Constraint("Vertical", 6))
sketch5.addConstraint(Sketcher.Constraint("Horizontal", 7))
sketch5.addConstraint(Sketcher.Constraint("Vertical", 8))
sketch5.addConstraint(Sketcher.Constraint("Horizontal", 9))
sketch5.addConstraint(Sketcher.Constraint("Vertical", 10))
sketch5.addConstraint(Sketcher.Constraint("Horizontal", 11))
sketch5.addConstraint(Sketcher.Constraint("Vertical", 12))
sketch5.addConstraint(Sketcher.Constraint("Horizontal", 13))
sketch5.addConstraint(Sketcher.Constraint("Vertical", 14))
sketch5.addConstraint(Sketcher.Constraint("Horizontal", 15))
sketch5.addConstraint(Sketcher.Constraint("Vertical", 16))
sketch5.addConstraint(Sketcher.Constraint("Horizontal", 17))
sketch5.addConstraint(Sketcher.Constraint("Vertical", 18))
sketch5.addConstraint(Sketcher.Constraint("Horizontal", 19))
sketch5.addConstraint(Sketcher.Constraint("Vertical", 20))
sketch5.addConstraint(Sketcher.Constraint("Horizontal", 21))
sketch5.addConstraint(Sketcher.Constraint("Vertical", 22))
sketch5.addConstraint(Sketcher.Constraint("Horizontal", 23))
sketch5.addConstraint(Sketcher.Constraint("Vertical", 24))
sketch5.addConstraint(Sketcher.Constraint("Horizontal", 25))
sketch5.addConstraint(Sketcher.Constraint("Vertical", 26))
sketch5.addConstraint(Sketcher.Constraint("Horizontal", 27))
sketch5.addConstraint(Sketcher.Constraint("Vertical", 28))
sketch5.addConstraint(Sketcher.Constraint("Horizontal", 29))
sketch5.addConstraint(Sketcher.Constraint("Vertical", 30))
sketch5.addConstraint(Sketcher.Constraint("Horizontal", 31))
sketch5.addConstraint(Sketcher.Constraint("Vertical", 32))
sketch5.addConstraint(Sketcher.Constraint("Horizontal", 33))
sketch5.addConstraint(Sketcher.Constraint("Vertical", 34))
sketch5.addConstraint(Sketcher.Constraint("Horizontal", 35))
sketch5.addConstraint(Sketcher.Constraint("Vertical", 36))
sketch5.addConstraint(Sketcher.Constraint("Horizontal", 37))
sketch5.addConstraint(Sketcher.Constraint("Vertical", 38))
sketch5.addConstraint(Sketcher.Constraint("Horizontal", 39))
sketch5.addConstraint(Sketcher.Constraint("Vertical", 40))
sketch5.addConstraint(Sketcher.Constraint("Horizontal", 41))
sketch5.addConstraint(Sketcher.Constraint("Vertical", 42))
sketch5.addConstraint(Sketcher.Constraint("Horizontal", 43))
sketch5.addConstraint(Sketcher.Constraint("Vertical", 44))
sketch5.addConstraint(Sketcher.Constraint("Horizontal", 45))
sketch5.addConstraint(Sketcher.Constraint("Vertical", 46))
sketch5.addConstraint(Sketcher.Constraint("Horizontal", 47))
sketch5.addConstraint(Sketcher.Constraint("Vertical", 48))
sketch5.addConstraint(Sketcher.Constraint("Horizontal", 49))
sketch5.addConstraint(Sketcher.Constraint("Vertical", 50))
sketch5.addConstraint(Sketcher.Constraint("Horizontal", 51))
sketch5.addConstraint(Sketcher.Constraint("Horizontal", 1, 2, 4, 2))
sketch5.addConstraint(Sketcher.Constraint("Horizontal", 3, 2, 6, 2))
sketch5.addConstraint(Sketcher.Constraint("Horizontal", 5, 2, 8, 2))
sketch5.addConstraint(Sketcher.Constraint("Horizontal", 7, 2, 10, 2))
sketch5.addConstraint(Sketcher.Constraint("Horizontal", 9, 2, 12, 2))
sketch5.addConstraint(Sketcher.Constraint("Horizontal", 11, 2, 14, 2))
sketch5.addConstraint(Sketcher.Constraint("Horizontal", 13, 2, 16, 2))
sketch5.addConstraint(Sketcher.Constraint("Horizontal", 15, 2, 18, 2))
sketch5.addConstraint(Sketcher.Constraint("Horizontal", 17, 2, 20, 2))
sketch5.addConstraint(Sketcher.Constraint("Horizontal", 19, 2, 22, 2))
sketch5.addConstraint(Sketcher.Constraint("Horizontal", 21, 2, 24, 2))
sketch5.addConstraint(Sketcher.Constraint("Horizontal", 23, 2, 26, 2))
sketch5.addConstraint(Sketcher.Constraint("Horizontal", 25, 2, 28, 2))
sketch5.addConstraint(Sketcher.Constraint("Horizontal", 27, 2, 30, 2))
sketch5.addConstraint(Sketcher.Constraint("Horizontal", 29, 2, 32, 2))
sketch5.addConstraint(Sketcher.Constraint("Horizontal", 31, 2, 34, 2))
sketch5.addConstraint(Sketcher.Constraint("Horizontal", 33, 2, 36, 2))
sketch5.addConstraint(Sketcher.Constraint("Horizontal", 35, 2, 38, 2))
sketch5.addConstraint(Sketcher.Constraint("Horizontal", 37, 2, 40, 2))
sketch5.addConstraint(Sketcher.Constraint("Horizontal", 39, 2, 42, 2))
sketch5.addConstraint(Sketcher.Constraint("Horizontal", 41, 2, 44, 2))
sketch5.addConstraint(Sketcher.Constraint("Horizontal", 43, 2, 46, 2))
sketch5.addConstraint(Sketcher.Constraint("Horizontal", 45, 2, 48, 2))
sketch5.addConstraint(Sketcher.Constraint("Horizontal", 47, 2, 50, 2))
sketch5.addConstraint(Sketcher.Constraint("Equal", 3, 5))
sketch5.addConstraint(Sketcher.Constraint("Equal", 7, 9))
sketch5.addConstraint(Sketcher.Constraint("Equal", 11, 13))
sketch5.addConstraint(Sketcher.Constraint("Equal", 15, 17))
sketch5.addConstraint(Sketcher.Constraint("Equal", 19, 21))
sketch5.addConstraint(Sketcher.Constraint("Equal", 23, 25))
sketch5.addConstraint(Sketcher.Constraint("Equal", 27, 29))
sketch5.addConstraint(Sketcher.Constraint("Equal", 31, 33))
sketch5.addConstraint(Sketcher.Constraint("Equal", 35, 37))
sketch5.addConstraint(Sketcher.Constraint("Equal", 39, 41))
sketch5.addConstraint(Sketcher.Constraint("Equal", 43, 45))
sketch5.addConstraint(Sketcher.Constraint("Equal", 47, 49))
sketch5.addConstraint(Sketcher.Constraint("DistanceX", 1, 1, 1, 2, Q("20 mm")))
sketch5.addConstraint(Sketcher.Constraint("DistanceY", 0, 2, 0, 1, Q("10 mm")))
sketch5.addConstraint(Sketcher.Constraint("DistanceY", -1, 1, 0, 2, Q("394 mm")))
sketch5.addConstraint(Sketcher.Constraint("DistanceX", 24, 2, -1, 1, Q("15 mm")))
sketch5.addConstraint(Sketcher.Constraint("DistanceX", 0, 2, -1, 1, Q("471.5 mm")))
sketch5.addConstraint(Sketcher.Constraint("DistanceX", -1, 1, 48, 2, Q("441.5 mm")))
sketch5.addConstraint(Sketcher.Constraint("DistanceX", 12, 2, -1, 1, Q("243.25 mm")))
sketch5.addConstraint(Sketcher.Constraint("DistanceX", -1, 1, 36, 2, Q("213.25 mm")))
sketch5.addConstraint(Sketcher.Constraint("DistanceX", 4, 2, -1, 1, Q("395.416667 mm")))
sketch5.addConstraint(Sketcher.Constraint("DistanceX", 8, 2, -1, 1, Q("319.333333 mm")))
sketch5.addConstraint(Sketcher.Constraint("DistanceX", 16, 2, -1, 1, Q("167.166667 mm")))
sketch5.addConstraint(Sketcher.Constraint("DistanceX", 20, 2, -1, 1, Q("91.083333 mm")))
sketch5.addConstraint(Sketcher.Constraint("DistanceX", -1, 1, 28, 2, Q("61.083333 mm")))
sketch5.addConstraint(Sketcher.Constraint("DistanceX", -1, 1, 32, 2, Q("137.166667 mm")))
sketch5.addConstraint(Sketcher.Constraint("DistanceX", -1, 1, 40, 2, Q("289.333333 mm")))
sketch5.addConstraint(Sketcher.Constraint("DistanceX", -1, 1, 44, 2, Q("365.416667 mm")))
pocket2 = body.newObject("PartDesign::Pocket", "Pocket001")
pocket2.Profile = sketch5
pocket2.Type = "ThroughAll"

# Sketch on XY plane
sketch6 = body.newObject("Sketcher::SketchObject", "Sketch005")
sketch6.AttachmentSupport = (doc.getObject("XY_Plane"), [""])
sketch6.MapMode = "FlatFace"
sketch6.AttachmentOffset = App.Placement(App.Vector(0, 0, -52), App.Rotation())
sketch6.addGeometry(Part.LineSegment(App.Vector(532, 426, 0), App.Vector(532, 391, 0)), False)
sketch6.addGeometry(Part.LineSegment(App.Vector(532, 391, 0), App.Vector(-532, 391, 0)), False)
sketch6.addGeometry(Part.LineSegment(App.Vector(-532, 391, 0), App.Vector(-532, 426, 0)), False)
sketch6.addGeometry(Part.LineSegment(App.Vector(-532, 426, 0), App.Vector(532, 426, 0)), False)
sketch6.addConstraint(Sketcher.Constraint("Coincident", 0, 2, 1, 1))
sketch6.addConstraint(Sketcher.Constraint("Coincident", 1, 2, 2, 1))
sketch6.addConstraint(Sketcher.Constraint("Coincident", 2, 2, 3, 1))
sketch6.addConstraint(Sketcher.Constraint("Coincident", 3, 2, 0, 1))
sketch6.addConstraint(Sketcher.Constraint("Vertical", 0))
sketch6.addConstraint(Sketcher.Constraint("Horizontal", 1))
sketch6.addConstraint(Sketcher.Constraint("Vertical", 2))
sketch6.addConstraint(Sketcher.Constraint("Horizontal", 3))
sketch6.addConstraint(Sketcher.Constraint("DistanceX", 1, 2, 1, 1, Q("1065 mm")))
sketch6.addConstraint(Sketcher.Constraint("DistanceY", 0, 2, 0, 1, Q("35 mm")))
sketch6.addConstraint(Sketcher.Constraint("DistanceY", -1, 1, 0, 2, Q("391 mm")))
sketch6.addConstraint(Sketcher.Constraint("DistanceX", -1, 1, 0, 2, Q("532.5 mm")))
pad4 = body.newObject("PartDesign::Pad", "Pad003")
pad4.Profile = sketch6
pad4.Length = 13

# Sketch on YZ plane
sketch7 = body.newObject("Sketcher::SketchObject", "Sketch006")
sketch7.AttachmentSupport = (doc.getObject("YZ_Plane"), [""])
sketch7.MapMode = "FlatFace"
sketch7.addGeometry(Part.LineSegment(App.Vector(426, -94, 0), App.Vector(426, -39, 0)), False)
sketch7.addGeometry(Part.LineSegment(App.Vector(426, -39, 0), App.Vector(411, -39, 0)), False)
sketch7.addGeometry(Part.LineSegment(App.Vector(411, -39, 0), App.Vector(411, -83.1, 0)), False)
sketch7.addGeometry(Part.LineSegment(App.Vector(411, -83.1, 0), App.Vector(392, -90, 0)), False)
sketch7.addGeometry(Part.LineSegment(App.Vector(392, -90, 0), App.Vector(392, -94, 0)), False)
sketch7.addGeometry(Part.LineSegment(App.Vector(392, -94, 0), App.Vector(426, -94, 0)), False)
sketch7.addConstraint(Sketcher.Constraint("Coincident", 0, 2, 1, 1))
sketch7.addConstraint(Sketcher.Constraint("Coincident", 1, 2, 2, 1))
sketch7.addConstraint(Sketcher.Constraint("Coincident", 2, 2, 3, 1))
sketch7.addConstraint(Sketcher.Constraint("Coincident", 3, 2, 4, 1))
sketch7.addConstraint(Sketcher.Constraint("Coincident", 4, 2, 5, 1))
sketch7.addConstraint(Sketcher.Constraint("Coincident", 5, 2, 0, 1))
sketch7.addConstraint(Sketcher.Constraint("Vertical", 0))
sketch7.addConstraint(Sketcher.Constraint("Horizontal", 1))
sketch7.addConstraint(Sketcher.Constraint("Vertical", 2))
sketch7.addConstraint(Sketcher.Constraint("Vertical", 4))
sketch7.addConstraint(Sketcher.Constraint("Horizontal", 5))
sketch7.addConstraint(Sketcher.Constraint("DistanceX", 1, 2, 1, 1, Q("15 mm")))
sketch7.addConstraint(Sketcher.Constraint("DistanceX", 5, 1, 5, 2, Q("34 mm")))
sketch7.addConstraint(Sketcher.Constraint("DistanceY", 0, 1, 0, 2, Q("55 mm")))
sketch7.addConstraint(Sketcher.Constraint("DistanceY", 4, 2, 4, 1, Q("4 mm")))
sketch7.addConstraint(Sketcher.Constraint("Angle", 3, Q("-160 deg")))
sketch7.addConstraint(Sketcher.Constraint("DistanceX", -1, 1, 0, 2, Q("426 mm")))
sketch7.addConstraint(Sketcher.Constraint("DistanceY", 0, 2, -1, 1, Q("39 mm")))
pad5 = body.newObject("PartDesign::Pad", "Pad004")
pad5.Profile = sketch7
pad5.Length = 1065
pad5.Midplane = True
doc.recompute()

fillet2 = body.newObject("PartDesign::Fillet", "Fillet001")
fillet2.Base = (pad5, edges_at(pad5, [(0, 426, -39), (0, 426, -94)]))
fillet2.Radius = 10
doc.recompute()

fillet3 = body.newObject("PartDesign::Fillet", "Fillet002")
fillet3.Base = (fillet2, edges_at(fillet2, [(0, 411, -52), (0, 411, -83.085)]))
fillet3.Radius = 5
doc.recompute()

chamfer = body.newObject("PartDesign::Chamfer", "Chamfer")
chamfer.Base = (fillet3, edges_at(fillet3, [
    (0, 46, 0),
    (0, 46, -52),
    (0, 369, -52),
    (0, 369, 0),
]))
chamfer.Size = 8

doc.recompute()
